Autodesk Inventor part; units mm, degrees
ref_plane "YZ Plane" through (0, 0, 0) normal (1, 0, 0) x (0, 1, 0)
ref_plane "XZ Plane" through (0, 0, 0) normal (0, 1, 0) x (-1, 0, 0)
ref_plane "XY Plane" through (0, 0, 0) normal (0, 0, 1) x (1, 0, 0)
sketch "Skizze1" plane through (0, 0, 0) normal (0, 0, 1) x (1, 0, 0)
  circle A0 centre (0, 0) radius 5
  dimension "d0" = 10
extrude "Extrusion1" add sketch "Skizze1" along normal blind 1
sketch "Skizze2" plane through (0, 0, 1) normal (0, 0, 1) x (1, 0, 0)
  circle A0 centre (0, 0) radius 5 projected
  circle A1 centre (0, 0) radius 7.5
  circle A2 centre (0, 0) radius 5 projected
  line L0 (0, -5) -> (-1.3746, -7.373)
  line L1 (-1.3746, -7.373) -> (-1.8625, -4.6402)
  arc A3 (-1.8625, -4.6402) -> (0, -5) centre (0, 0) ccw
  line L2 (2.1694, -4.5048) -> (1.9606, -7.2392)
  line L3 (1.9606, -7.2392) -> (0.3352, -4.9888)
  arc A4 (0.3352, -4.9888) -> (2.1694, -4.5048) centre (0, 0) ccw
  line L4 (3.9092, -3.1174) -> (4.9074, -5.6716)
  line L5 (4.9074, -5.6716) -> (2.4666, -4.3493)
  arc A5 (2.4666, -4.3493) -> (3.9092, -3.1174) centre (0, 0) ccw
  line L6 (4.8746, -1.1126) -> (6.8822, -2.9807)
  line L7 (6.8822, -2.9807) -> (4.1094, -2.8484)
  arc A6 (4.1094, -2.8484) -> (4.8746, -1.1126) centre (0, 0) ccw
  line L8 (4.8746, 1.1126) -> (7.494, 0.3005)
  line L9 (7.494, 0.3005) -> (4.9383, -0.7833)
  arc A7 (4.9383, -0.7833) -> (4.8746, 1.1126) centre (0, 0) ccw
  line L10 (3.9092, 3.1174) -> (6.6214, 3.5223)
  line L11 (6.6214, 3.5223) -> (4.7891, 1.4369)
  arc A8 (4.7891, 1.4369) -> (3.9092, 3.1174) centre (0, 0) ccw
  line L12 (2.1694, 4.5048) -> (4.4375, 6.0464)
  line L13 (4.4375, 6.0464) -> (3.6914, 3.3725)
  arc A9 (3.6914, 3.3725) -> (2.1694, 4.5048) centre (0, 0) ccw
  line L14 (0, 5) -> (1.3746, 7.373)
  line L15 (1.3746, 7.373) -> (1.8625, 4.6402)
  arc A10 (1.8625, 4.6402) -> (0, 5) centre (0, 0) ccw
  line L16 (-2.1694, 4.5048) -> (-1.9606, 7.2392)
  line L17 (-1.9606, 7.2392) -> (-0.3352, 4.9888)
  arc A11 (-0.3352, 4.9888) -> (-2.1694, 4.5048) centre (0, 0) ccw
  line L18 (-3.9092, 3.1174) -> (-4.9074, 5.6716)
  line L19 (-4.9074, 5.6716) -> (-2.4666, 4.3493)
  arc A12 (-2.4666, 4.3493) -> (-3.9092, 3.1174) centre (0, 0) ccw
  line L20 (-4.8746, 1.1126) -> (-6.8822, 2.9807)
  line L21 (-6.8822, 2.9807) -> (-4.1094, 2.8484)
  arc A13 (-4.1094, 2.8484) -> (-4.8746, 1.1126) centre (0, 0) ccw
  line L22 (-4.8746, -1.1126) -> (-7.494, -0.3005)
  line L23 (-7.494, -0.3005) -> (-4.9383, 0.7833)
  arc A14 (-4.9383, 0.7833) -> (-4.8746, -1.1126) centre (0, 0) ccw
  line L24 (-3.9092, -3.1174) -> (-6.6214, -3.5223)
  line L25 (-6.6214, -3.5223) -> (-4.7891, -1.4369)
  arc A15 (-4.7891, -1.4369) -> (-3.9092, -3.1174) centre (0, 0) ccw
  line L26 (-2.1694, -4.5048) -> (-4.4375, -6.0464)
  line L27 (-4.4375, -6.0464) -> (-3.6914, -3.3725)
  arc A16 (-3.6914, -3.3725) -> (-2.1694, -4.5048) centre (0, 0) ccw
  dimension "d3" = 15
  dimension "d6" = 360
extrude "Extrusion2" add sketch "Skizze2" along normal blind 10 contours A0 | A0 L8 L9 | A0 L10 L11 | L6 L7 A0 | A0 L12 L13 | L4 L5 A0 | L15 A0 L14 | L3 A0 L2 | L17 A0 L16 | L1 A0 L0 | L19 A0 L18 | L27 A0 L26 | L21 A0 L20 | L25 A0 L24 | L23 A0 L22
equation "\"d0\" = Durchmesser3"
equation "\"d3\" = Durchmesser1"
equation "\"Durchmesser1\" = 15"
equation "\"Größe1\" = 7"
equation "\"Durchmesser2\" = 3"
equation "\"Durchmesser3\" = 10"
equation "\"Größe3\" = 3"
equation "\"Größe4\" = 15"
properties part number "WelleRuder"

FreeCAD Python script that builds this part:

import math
import FreeCAD as App
import Part
import Sketcher
from FreeCAD import Vector
Q = App.Units.Quantity

doc = App.newDocument("Part")
body = doc.addObject("PartDesign::Body", "Body")

# Sketch on XY plane
sketch1 = body.newObject("Sketcher::SketchObject", "Sketch")
sketch1.AttachmentSupport = (doc.getObject("XY_Plane"), [""])
sketch1.MapMode = "FlatFace"
sketch1.addGeometry(Part.Circle(Vector(0, 0, 0), Vector(0, 0, 1), 5), False)
sketch1.addConstraint(Sketcher.Constraint("Coincident", 0, 3, -1, 1))
sketch1.addConstraint(Sketcher.Constraint("Diameter", 0, 10.0))
pad1 = body.newObject("PartDesign::Pad", "Pad")
pad1.Profile = sketch1
pad1.Length = 1

# Sketch on XY plane
sketch2 = body.newObject("Sketcher::SketchObject", "Sketch001")
sketch2.AttachmentSupport = (doc.getObject("XY_Plane"), [""])
sketch2.MapMode = "FlatFace"
sketch2.AttachmentOffset = App.Placement(Vector(0, 0, 1), App.Rotation())
sketch2.addGeometry(Part.ArcOfCircle(Part.Circle(Vector(0, 0, 0), Vector(0, 0, 1), 5), math.radians(-12.86), math.radians(-9.01)), False)
sketch2.addGeometry(Part.LineSegment(Vector(4.94, -0.78, 0), Vector(7.49, 0.3, 0)), False)
sketch2.addGeometry(Part.LineSegment(Vector(7.49, 0.3, 0), Vector(4.87, 1.11, 0)), False)
sketch2.addGeometry(Part.ArcOfCircle(Part.Circle(Vector(0, 0, 0), Vector(0, 0, 1), 5), math.radians(12.86), math.radians(16.7)), False)
sketch2.addGeometry(Part.LineSegment(Vector(4.79, 1.44, 0), Vector(6.62, 3.52, 0)), False)
sketch2.addGeometry(Part.LineSegment(Vector(6.62, 3.52, 0), Vector(3.91, 3.12, 0)), False)
sketch2.addGeometry(Part.ArcOfCircle(Part.Circle(Vector(0, 0, 0), Vector(0, 0, 1), 5), math.radians(38.57), math.radians(42.42)), False)
sketch2.addGeometry(Part.LineSegment(Vector(3.69, 3.37, 0), Vector(4.44, 6.05, 0)), False)
sketch2.addGeometry(Part.LineSegment(Vector(4.44, 6.05, 0), Vector(2.17, 4.5, 0)), False)
sketch2.addGeometry(Part.ArcOfCircle(Part.Circle(Vector(0, 0, 0), Vector(0, 0, 1), 5), math.radians(64.29), math.radians(68.13)), False)
sketch2.addGeometry(Part.LineSegment(Vector(1.86, 4.64, 0), Vector(1.37, 7.37, 0)), False)
sketch2.addGeometry(Part.LineSegment(Vector(1.37, 7.37, 0), Vector(0, 5, 0)), False)
sketch2.addGeometry(Part.ArcOfCircle(Part.Circle(Vector(0, 0, 0), Vector(0, 0, 1), 5), math.radians(90), math.radians(93.84)), False)
sketch2.addGeometry(Part.LineSegment(Vector(-0.34, 4.99, 0), Vector(-1.96, 7.24, 0)), False)
sketch2.addGeometry(Part.LineSegment(Vector(-1.96, 7.24, 0), Vector(-2.17, 4.5, 0)), False)
sketch2.addGeometry(Part.ArcOfCircle(Part.Circle(Vector(0, 0, 0), Vector(0, 0, 1), 5), math.radians(115.71), math.radians(119.56)), False)
sketch2.addGeometry(Part.LineSegment(Vector(-2.47, 4.35, 0), Vector(-4.91, 5.67, 0)), False)
sketch2.addGeometry(Part.LineSegment(Vector(-4.91, 5.67, 0), Vector(-3.91, 3.12, 0)), False)
sketch2.addGeometry(Part.ArcOfCircle(Part.Circle(Vector(0, 0, 0), Vector(0, 0, 1), 5), math.radians(141.43), math.radians(145.27)), False)
sketch2.addGeometry(Part.LineSegment(Vector(-4.11, 2.85, 0), Vector(-6.88, 2.98, 0)), False)
sketch2.addGeometry(Part.LineSegment(Vector(-6.88, 2.98, 0), Vector(-4.87, 1.11, 0)), False)
sketch2.addGeometry(Part.ArcOfCircle(Part.Circle(Vector(0, 0, 0), Vector(0, 0, 1), 5), math.radians(167.14), math.radians(170.99)), False)
sketch2.addGeometry(Part.LineSegment(Vector(-4.94, 0.78, 0), Vector(-7.49, -0.3, 0)), False)
sketch2.addGeometry(Part.LineSegment(Vector(-7.49, -0.3, 0), Vector(-4.87, -1.11, 0)), False)
sketch2.addGeometry(Part.ArcOfCircle(Part.Circle(Vector(0, 0, 0), Vector(0, 0, 1), 5), math.radians(-167.14), math.radians(-163.3)), False)
sketch2.addGeometry(Part.LineSegment(Vector(-4.79, -1.44, 0), Vector(-6.62, -3.52, 0)), False)
sketch2.addGeometry(Part.LineSegment(Vector(-6.62, -3.52, 0), Vector(-3.91, -3.12, 0)), False)
sketch2.addGeometry(Part.ArcOfCircle(Part.Circle(Vector(0, 0, 0), Vector(0, 0, 1), 5), math.radians(-141.43), math.radians(-137.58)), False)
sketch2.addGeometry(Part.LineSegment(Vector(-3.69, -3.37, 0), Vector(-4.44, -6.05, 0)), False)
sketch2.addGeometry(Part.LineSegment(Vector(-4.44, -6.05, 0), Vector(-2.17, -4.5, 0)), False)
sketch2.addGeometry(Part.ArcOfCircle(Part.Circle(Vector(0, 0, 0), Vector(0, 0, 1), 5), math.radians(-115.71), math.radians(-111.87)), False)
sketch2.addGeometry(Part.LineSegment(Vector(-1.86, -4.64, 0), Vector(-1.37, -7.37, 0)), False)
sketch2.addGeometry(Part.LineSegment(Vector(-1.37, -7.37, 0), Vector(0, -5, 0)), False)
sketch2.addGeometry(Part.ArcOfCircle(Part.Circle(Vector(0, 0, 0), Vector(0, 0, 1), 5), math.radians(-90), math.radians(-86.16)), False)
sketch2.addGeometry(Part.LineSegment(Vector(0.34, -4.99, 0), Vector(1.96, -7.24, 0)), False)
sketch2.addGeometry(Part.LineSegment(Vector(1.96, -7.24, 0), Vector(2.17, -4.5, 0)), False)
sketch2.addGeometry(Part.ArcOfCircle(Part.Circle(Vector(0, 0, 0), Vector(0, 0, 1), 5), math.radians(-64.29), math.radians(-60.44)), False)
sketch2.addGeometry(Part.LineSegment(Vector(2.47, -4.35, 0), Vector(4.91, -5.67, 0)), False)
sketch2.addGeometry(Part.LineSegment(Vector(4.91, -5.67, 0), Vector(3.91, -3.12, 0)), False)
sketch2.addGeometry(Part.ArcOfCircle(Part.Circle(Vector(0, 0, 0), Vector(0, 0, 1), 5), math.radians(-38.57), math.radians(-34.73)), False)
sketch2.addGeometry(Part.LineSegment(Vector(4.11, -2.85, 0), Vector(6.88, -2.98, 0)), False)
sketch2.addGeometry(Part.LineSegment(Vector(6.88, -2.98, 0), Vector(4.87, -1.11, 0)), False)
sketch2.addConstraint(Sketcher.Constraint("Coincident", 0, 2, 1, 1))
sketch2.addConstraint(Sketcher.Constraint("Coincident", 1, 2, 2, 1))
sketch2.addConstraint(Sketcher.Constraint("Coincident", 2, 2, 3, 1))
sketch2.addConstraint(Sketcher.Constraint("Coincident", 3, 2, 4, 1))
sketch2.addConstraint(Sketcher.Constraint("Coincident", 4, 2, 5, 1))
sketch2.addConstraint(Sketcher.Constraint("Coincident", 5, 2, 6, 1))
sketch2.addConstraint(Sketcher.Constraint("Coincident", 6, 2, 7, 1))
sketch2.addConstraint(Sketcher.Constraint("Coincident", 7, 2, 8, 1))
sketch2.addConstraint(Sketcher.Constraint("Coincident", 8, 2, 9, 1))
sketch2.addConstraint(Sketcher.Constraint("Coincident", 9, 2, 10, 1))
sketch2.addConstraint(Sketcher.Constraint("Coincident", 10, 2, 11, 1))
sketch2.addConstraint(Sketcher.Constraint("Coincident", 11, 2, 12, 1))
sketch2.addConstraint(Sketcher.Constraint("Coincident", 12, 2, 13, 1))
sketch2.addConstraint(Sketcher.Constraint("Coincident", 13, 2, 14, 1))
sketch2.addConstraint(Sketcher.Constraint("Coincident", 14, 2, 15, 1))
sketch2.addConstraint(Sketcher.Constraint("Coincident", 15, 2, 16, 1))
sketch2.addConstraint(Sketcher.Constraint("Coincident", 16, 2, 17, 1))
sketch2.addConstraint(Sketcher.Constraint("Coincident", 17, 2, 18, 1))
sketch2.addConstraint(Sketcher.Constraint("Coincident", 18, 2, 19, 1))
sketch2.addConstraint(Sketcher.Constraint("Coincident", 19, 2, 20, 1))
sketch2.addConstraint(Sketcher.Constraint("Coincident", 20, 2, 21, 1))
sketch2.addConstraint(Sketcher.Constraint("Coincident", 21, 2, 22, 1))
sketch2.addConstraint(Sketcher.Constraint("Coincident", 22, 2, 23, 1))
sketch2.addConstraint(Sketcher.Constraint("Coincident", 23, 2, 24, 1))
sketch2.addConstraint(Sketcher.Constraint("Coincident", 24, 2, 25, 1))
sketch2.addConstraint(Sketcher.Constraint("Coincident", 25, 2, 26, 1))
sketch2.addConstraint(Sketcher.Constraint("Coincident", 26, 2, 27, 1))
sketch2.addConstraint(Sketcher.Constraint("Coincident", 27, 2, 28, 1))
sketch2.addConstraint(Sketcher.Constraint("Coincident", 28, 2, 29, 1))
sketch2.addConstraint(Sketcher.Constraint("Coincident", 29, 2, 30, 1))
sketch2.addConstraint(Sketcher.Constraint("Coincident", 30, 2, 31, 1))
sketch2.addConstraint(Sketcher.Constraint("Coincident", 31, 2, 32, 1))
sketch2.addConstraint(Sketcher.Constraint("Coincident", 32, 2, 33, 1))
sketch2.addConstraint(Sketcher.Constraint("Coincident", 33, 2, 34, 1))
sketch2.addConstraint(Sketcher.Constraint("Coincident", 34, 2, 35, 1))
sketch2.addConstraint(Sketcher.Constraint("Coincident", 35, 2, 36, 1))
sketch2.addConstraint(Sketcher.Constraint("Coincident", 36, 2, 37, 1))
sketch2.addConstraint(Sketcher.Constraint("Coincident", 37, 2, 38, 1))
sketch2.addConstraint(Sketcher.Constraint("Coincident", 38, 2, 39, 1))
sketch2.addConstraint(Sketcher.Constraint("Coincident", 39, 2, 40, 1))
sketch2.addConstraint(Sketcher.Constraint("Coincident", 40, 2, 41, 1))
sketch2.addConstraint(Sketcher.Constraint("Coincident", 41, 2, 0, 1))
sketch2.addConstraint(Sketcher.Constraint("Coincident", 0, 3, -1, 1))
sketch2.addConstraint(Sketcher.Constraint("Coincident", 3, 3, -1, 1))
sketch2.addConstraint(Sketcher.Constraint("Coincident", 6, 3, -1, 1))
sketch2.addConstraint(Sketcher.Constraint("Coincident", 9, 3, -1, 1))
sketch2.addConstraint(Sketcher.Constraint("Coincident", 12, 3, -1, 1))
sketch2.addConstraint(Sketcher.Constraint("Coincident", 15, 3, -1, 1))
sketch2.addConstraint(Sketcher.Constraint("Coincident", 18, 3, -1, 1))
sketch2.addConstraint(Sketcher.Constraint("Coincident", 21, 3, -1, 1))
sketch2.addConstraint(Sketcher.Constraint("Coincident", 24, 3, -1, 1))
sketch2.addConstraint(Sketcher.Constraint("Coincident", 27, 3, -1, 1))
sketch2.addConstraint(Sketcher.Constraint("Coincident", 30, 3, -1, 1))
sketch2.addConstraint(Sketcher.Constraint("Coincident", 33, 3, -1, 1))
sketch2.addConstraint(Sketcher.Constraint("Coincident", 36, 3, -1, 1))
sketch2.addConstraint(Sketcher.Constraint("Coincident", 39, 3, -1, 1))
sketch2.addConstraint(Sketcher.Constraint("Equal", 0, 3))
sketch2.addConstraint(Sketcher.Constraint("Equal", 3, 6))
sketch2.addConstraint(Sketcher.Constraint("Equal", 6, 9))
sketch2.addConstraint(Sketcher.Constraint("Equal", 9, 12))
sketch2.addConstraint(Sketcher.Constraint("Equal", 12, 15))
sketch2.addConstraint(Sketcher.Constraint("Equal", 15, 18))
sketch2.addConstraint(Sketcher.Constraint("Equal", 18, 21))
sketch2.addConstraint(Sketcher.Constraint("Equal", 21, 24))
sketch2.addConstraint(Sketcher.Constraint("Equal", 24, 27))
sketch2.addConstraint(Sketcher.Constraint("Equal", 27, 30))
sketch2.addConstraint(Sketcher.Constraint("Equal", 30, 33))
sketch2.addConstraint(Sketcher.Constraint("Equal", 33, 36))
sketch2.addConstraint(Sketcher.Constraint("Equal", 36, 39))
sketch2.addConstraint(Sketcher.Constraint("Symmetric", 1, 2, 22, 2, -1, 1))
sketch2.addConstraint(Sketcher.Constraint("Symmetric", 4, 2, 25, 2, -1, 1))
sketch2.addConstraint(Sketcher.Constraint("Symmetric", 7, 2, 28, 2, -1, 1))
sketch2.addConstraint(Sketcher.Constraint("Symmetric", 10, 2, 31, 2, -1, 1))
sketch2.addConstraint(Sketcher.Constraint("Symmetric", 13, 2, 34, 2, -1, 1))
sketch2.addConstraint(Sketcher.Constraint("Symmetric", 16, 2, 37, 2, -1, 1))
sketch2.addConstraint(Sketcher.Constraint("Symmetric", 19, 2, 40, 2, -1, 1))
sketch2.addConstraint(Sketcher.Constraint("PointOnObject", 11, 2, -2))
sketch2.addConstraint(Sketcher.Constraint("PointOnObject", 32, 2, -2))
sketch2.addConstraint(Sketcher.Constraint("Parallel", 1, 22))
sketch2.addConstraint(Sketcher.Constraint("Parallel", 2, 23))
sketch2.addConstraint(Sketcher.Constraint("Parallel", 4, 25))
sketch2.addConstraint(Sketcher.Constraint("Parallel", 5, 26))
sketch2.addConstraint(Sketcher.Constraint("Parallel", 7, 28))
sketch2.addConstraint(Sketcher.Constraint("Parallel", 8, 29))
sketch2.addConstraint(Sketcher.Constraint("Parallel", 10, 31))
sketch2.addConstraint(Sketcher.Constraint("Parallel", 13, 34))
sketch2.addConstraint(Sketcher.Constraint("Parallel", 14, 35))
sketch2.addConstraint(Sketcher.Constraint("Parallel", 16, 37))
sketch2.addConstraint(Sketcher.Constraint("Parallel", 17, 38))
sketch2.addConstraint(Sketcher.Constraint("Parallel", 19, 40))
sketch2.addConstraint(Sketcher.Constraint("Parallel", 20, 41))
sketch2.addConstraint(Sketcher.Constraint("Horizontal", 8, 2, 14, 2))
sketch2.addConstraint(Sketcher.Constraint("Horizontal", 5, 2, 17, 2))
sketch2.addConstraint(Sketcher.Constraint("Horizontal", 2, 2, 20, 2))
sketch2.addConstraint(Sketcher.Constraint("Equal", 1, 4))
sketch2.addConstraint(Sketcher.Constraint("Equal", 2, 5))
sketch2.addConstraint(Sketcher.Constraint("Equal", 4, 7))
sketch2.addConstraint(Sketcher.Constraint("Equal", 5, 8))
sketch2.addConstraint(Sketcher.Constraint("Equal", 7, 10))
sketch2.addConstraint(Sketcher.Constraint("Equal", 8, 11))
sketch2.addConstraint(Sketcher.Constraint("Equal", 10, 13))
sketch2.addConstraint(Sketcher.Constraint("Equal", 11, 14))
sketch2.addConstraint(Sketcher.Constraint("Equal", 13, 16))
sketch2.addConstraint(Sketcher.Constraint("Equal", 14, 17))
sketch2.addConstraint(Sketcher.Constraint("Equal", 16, 19))
sketch2.addConstraint(Sketcher.Constraint("Equal", 17, 20))
sketch2.addConstraint(Sketcher.Constraint("Radius", 0, 5.0))
sketch2.addConstraint(Sketcher.Constraint("Angle", 1, Q("22.9804 deg")))
sketch2.addConstraint(Sketcher.Constraint("Angle", 5, Q("-171.509 deg")))
sketch2.addConstraint(Sketcher.Constraint("Angle", 7, Q("74.4093 deg")))
sketch2.addConstraint(Sketcher.Constraint("Angle", 13, Q("125.8395 deg")))
sketch2.addConstraint(Sketcher.Constraint("DistanceX", 5, 2, 3, 2, 0.88))
sketch2.addConstraint(Sketcher.Constraint("DistanceY", 2, 2, 6, 2, 2.26))
sketch2.addConstraint(Sketcher.Constraint("DistanceX", 6, 2, 4, 2, 2.93))
sketch2.addConstraint(Sketcher.Constraint("DistanceX", 13, 2, 8, 2, 4.13))
sketch2.addConstraint(Sketcher.Constraint("DistanceY", 15, 2, 13, 2, 2.89))
sketch2.addConstraint(Sketcher.Constraint("DistanceX", 18, 2, 14, 2, 1.94))
sketch2.addConstraint(Sketcher.Constraint("DistanceY", 23, 2, 17, 2, 4.23))
sketch2.addConstraint(Sketcher.Constraint("DistanceY", -1, 1, 10, 2, 7.373))
pad2 = body.newObject("PartDesign::Pad", "Pad001")
pad2.Profile = sketch2
pad2.Length = 10

doc.recompute()
